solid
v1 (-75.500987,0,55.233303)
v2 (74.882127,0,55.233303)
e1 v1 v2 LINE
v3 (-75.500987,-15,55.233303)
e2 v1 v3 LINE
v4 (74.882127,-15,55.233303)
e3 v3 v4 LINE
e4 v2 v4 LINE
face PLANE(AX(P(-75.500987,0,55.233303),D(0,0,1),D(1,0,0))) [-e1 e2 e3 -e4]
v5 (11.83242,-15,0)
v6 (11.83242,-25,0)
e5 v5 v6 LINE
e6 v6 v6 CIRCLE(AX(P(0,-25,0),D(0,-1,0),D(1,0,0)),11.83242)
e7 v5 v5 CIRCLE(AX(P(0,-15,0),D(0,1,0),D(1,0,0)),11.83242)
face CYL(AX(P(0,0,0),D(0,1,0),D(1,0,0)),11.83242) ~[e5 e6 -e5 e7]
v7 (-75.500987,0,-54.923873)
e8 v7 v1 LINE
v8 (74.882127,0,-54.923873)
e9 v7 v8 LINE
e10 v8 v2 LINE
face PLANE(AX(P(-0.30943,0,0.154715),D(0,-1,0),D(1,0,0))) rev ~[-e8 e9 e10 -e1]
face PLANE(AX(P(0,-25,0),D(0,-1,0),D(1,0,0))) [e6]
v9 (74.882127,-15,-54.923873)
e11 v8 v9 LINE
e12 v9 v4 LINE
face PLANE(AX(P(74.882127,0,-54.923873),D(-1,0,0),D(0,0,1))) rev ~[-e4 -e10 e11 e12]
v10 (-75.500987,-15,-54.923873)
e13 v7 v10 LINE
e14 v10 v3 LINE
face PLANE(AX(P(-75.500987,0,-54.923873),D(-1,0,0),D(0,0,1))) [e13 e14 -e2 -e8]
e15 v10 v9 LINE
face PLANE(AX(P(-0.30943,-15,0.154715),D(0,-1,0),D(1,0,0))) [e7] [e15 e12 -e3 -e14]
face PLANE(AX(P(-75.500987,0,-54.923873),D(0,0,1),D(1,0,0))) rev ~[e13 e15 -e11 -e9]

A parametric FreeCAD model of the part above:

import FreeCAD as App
import Part
import Sketcher

V = App.Vector
Q = App.Units.Quantity


def add_polygon(sketch, points):
    """Adds a closed chain of lines whose ends are joined by coincident constraints."""
    first, n = sketch.GeometryCount, len(points)
    for a, b in zip(points, points[1:] + points[:1]):
        sketch.addGeometry(Part.LineSegment(App.Vector(*a, 0), App.Vector(*b, 0)), False)
    for i in range(n):
        sketch.addConstraint(Sketcher.Constraint("Coincident", first + i, 2, first + (i + 1) % n, 1))

doc = App.newDocument("Part")
params = doc.addObject("Spreadsheet::Sheet", "Params")
for row, (alias, value) in enumerate([
    ("pad1_length", "25 mm"),
    ("pad2_length", "15 mm"),
], start=1):
    params.set(f"A{row}", alias)
    params.set(f"B{row}", "=" + value)
    params.setAlias(f"B{row}", alias)

body = doc.addObject("PartDesign::Body", "Body")

# Sketch on XZ plane
sketch1 = body.newObject("Sketcher::SketchObject", "Sketch")
sketch1.AttachmentSupport = (doc.getObject("XZ_Plane"), [""])
sketch1.MapMode = "FlatFace"
sketch1.addGeometry(Part.Circle(V(0, 0, 0), V(0, 0, 1), 12), False)
sketch1.addConstraint(Sketcher.Constraint("Coincident", 0, 3, -1, 1))
sketch1.addConstraint(Sketcher.Constraint("Diameter", 0, Q("23.66484 mm")))
pad1 = body.newObject("PartDesign::Pad", "Pad")
pad1.Profile = sketch1
pad1.setExpression("Length", "Params.pad1_length")

# Sketch on XZ plane
sketch2 = body.newObject("Sketcher::SketchObject", "Sketch001")
sketch2.AttachmentSupport = (doc.getObject("XZ_Plane"), [""])
sketch2.MapMode = "FlatFace"
add_polygon(sketch2, [(-76, 55), (-76, -55), (75, -55), (75, 55)])  # lines 0-3
sketch2.addConstraint(Sketcher.Constraint("Vertical", 0))
sketch2.addConstraint(Sketcher.Constraint("Horizontal", 1))
sketch2.addConstraint(Sketcher.Constraint("Vertical", 2))
sketch2.addConstraint(Sketcher.Constraint("Horizontal", 3))
sketch2.addConstraint(Sketcher.Constraint("DistanceX", 1, 1, 1, 2, Q("150.383114 mm")))
sketch2.addConstraint(Sketcher.Constraint("DistanceY", 0, 2, 0, 1, Q("110.157176 mm")))
sketch2.addConstraint(Sketcher.Constraint("DistanceX", 0, 2, -1, 1, Q("75.500987 mm")))
sketch2.addConstraint(Sketcher.Constraint("DistanceY", 0, 2, -1, 1, Q("54.923873 mm")))
pad2 = body.newObject("PartDesign::Pad", "Pad001")
pad2.Profile = sketch2
pad2.setExpression("Length", "Params.pad2_length")

doc.recompute()
